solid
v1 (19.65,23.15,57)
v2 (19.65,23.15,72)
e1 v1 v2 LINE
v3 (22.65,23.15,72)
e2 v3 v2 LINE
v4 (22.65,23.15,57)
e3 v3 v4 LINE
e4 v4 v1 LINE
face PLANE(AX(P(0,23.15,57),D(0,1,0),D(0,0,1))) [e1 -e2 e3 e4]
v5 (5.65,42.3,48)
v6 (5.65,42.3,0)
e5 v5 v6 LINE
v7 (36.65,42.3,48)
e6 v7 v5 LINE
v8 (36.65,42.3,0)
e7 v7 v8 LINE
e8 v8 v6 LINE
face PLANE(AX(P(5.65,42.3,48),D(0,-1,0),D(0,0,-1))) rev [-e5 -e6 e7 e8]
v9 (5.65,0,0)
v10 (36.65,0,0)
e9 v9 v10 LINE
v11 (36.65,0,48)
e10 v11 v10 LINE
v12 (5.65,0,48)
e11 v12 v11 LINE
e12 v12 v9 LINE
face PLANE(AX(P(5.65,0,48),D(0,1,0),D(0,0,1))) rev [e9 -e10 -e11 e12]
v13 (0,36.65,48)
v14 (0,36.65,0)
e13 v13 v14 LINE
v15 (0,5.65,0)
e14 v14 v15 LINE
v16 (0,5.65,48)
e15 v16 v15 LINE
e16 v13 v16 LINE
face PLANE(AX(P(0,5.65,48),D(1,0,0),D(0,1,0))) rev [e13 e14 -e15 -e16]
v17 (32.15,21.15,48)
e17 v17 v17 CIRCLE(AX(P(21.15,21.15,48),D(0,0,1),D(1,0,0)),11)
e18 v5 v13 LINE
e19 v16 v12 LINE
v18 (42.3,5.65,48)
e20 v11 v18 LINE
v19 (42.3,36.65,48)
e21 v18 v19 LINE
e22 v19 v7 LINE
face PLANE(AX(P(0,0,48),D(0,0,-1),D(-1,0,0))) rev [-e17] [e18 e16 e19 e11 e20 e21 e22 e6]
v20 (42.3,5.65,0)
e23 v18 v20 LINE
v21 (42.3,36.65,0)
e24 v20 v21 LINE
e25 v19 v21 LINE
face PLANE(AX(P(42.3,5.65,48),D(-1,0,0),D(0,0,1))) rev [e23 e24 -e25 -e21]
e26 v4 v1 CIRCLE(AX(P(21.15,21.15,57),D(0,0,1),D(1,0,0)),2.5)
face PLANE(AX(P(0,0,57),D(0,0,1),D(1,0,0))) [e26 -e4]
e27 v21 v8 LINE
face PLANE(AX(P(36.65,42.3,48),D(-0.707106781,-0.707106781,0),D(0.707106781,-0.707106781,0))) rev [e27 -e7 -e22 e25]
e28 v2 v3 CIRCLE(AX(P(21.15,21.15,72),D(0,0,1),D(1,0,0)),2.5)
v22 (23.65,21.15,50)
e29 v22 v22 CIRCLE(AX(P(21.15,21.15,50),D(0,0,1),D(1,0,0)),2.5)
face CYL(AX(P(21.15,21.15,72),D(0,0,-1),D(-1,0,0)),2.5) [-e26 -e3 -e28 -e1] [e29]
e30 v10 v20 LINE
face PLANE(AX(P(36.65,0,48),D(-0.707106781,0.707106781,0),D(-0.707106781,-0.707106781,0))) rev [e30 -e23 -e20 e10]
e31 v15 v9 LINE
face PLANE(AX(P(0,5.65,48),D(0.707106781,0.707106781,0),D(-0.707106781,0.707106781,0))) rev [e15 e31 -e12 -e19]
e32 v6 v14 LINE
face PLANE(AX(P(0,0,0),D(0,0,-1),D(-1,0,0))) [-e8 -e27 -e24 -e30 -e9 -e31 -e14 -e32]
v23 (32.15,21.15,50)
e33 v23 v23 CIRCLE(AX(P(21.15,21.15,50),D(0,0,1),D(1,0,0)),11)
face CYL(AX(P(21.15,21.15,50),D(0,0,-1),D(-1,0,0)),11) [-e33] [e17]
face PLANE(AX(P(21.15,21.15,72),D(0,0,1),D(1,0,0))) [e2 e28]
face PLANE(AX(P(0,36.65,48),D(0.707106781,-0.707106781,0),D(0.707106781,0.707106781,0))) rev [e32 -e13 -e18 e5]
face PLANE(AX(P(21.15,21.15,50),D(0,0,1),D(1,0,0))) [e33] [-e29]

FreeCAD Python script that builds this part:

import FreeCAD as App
import Part
import Sketcher

V = App.Vector

doc = App.newDocument("Part")
body = doc.addObject("PartDesign::Body", "Body")

# Sketch on XY plane
sketch1 = doc.addObject("Sketcher::SketchObject", "Sketch")
body.addObject(sketch1)
sketch1.AttachmentSupport = (doc.XY_Plane, [""])
sketch1.MapMode = "FlatFace"
sketch1.addGeometry([
    Part.LineSegment(V(5.65, 0, 0), V(36.65, 0, 0)),  # 0
    Part.LineSegment(V(36.65, 0, 0), V(42.3, 5.65, 0)),  # 1
    Part.LineSegment(V(42.3, 5.65, 0), V(42.3, 36.65, 0)),  # 2
    Part.LineSegment(V(42.3, 36.65, 0), V(36.65, 42.3, 0)),  # 3
    Part.LineSegment(V(36.65, 42.3, 0), V(5.65, 42.3, 0)),  # 4
    Part.LineSegment(V(5.65, 42.3, 0), V(0, 36.65, 0)),  # 5
    Part.LineSegment(V(0, 36.65, 0), V(0, 5.65, 0)),  # 6
    Part.LineSegment(V(0, 5.65, 0), V(5.65, 0, 0)),  # 7
], False)
sketch1.addConstraint([
    Sketcher.Constraint("Coincident", 0, 2, 1, 1),
    Sketcher.Constraint("Coincident", 1, 2, 2, 1),
    Sketcher.Constraint("Coincident", 2, 2, 3, 1),
    Sketcher.Constraint("Coincident", 3, 2, 4, 1),
    Sketcher.Constraint("Coincident", 4, 2, 5, 1),
    Sketcher.Constraint("Coincident", 5, 2, 6, 1),
    Sketcher.Constraint("Coincident", 6, 2, 7, 1),
    Sketcher.Constraint("Coincident", 7, 2, 0, 1),
    Sketcher.Constraint("Horizontal", 0),
    Sketcher.Constraint("Vertical", 2),
    Sketcher.Constraint("Horizontal", 4),
    Sketcher.Constraint("Vertical", 6),
    Sketcher.Constraint("PointOnObject", 0, 2, -1),
    Sketcher.Constraint("PointOnObject", 5, 2, -2),
    Sketcher.Constraint("Perpendicular", 1, 3),
    Sketcher.Constraint("Perpendicular", 3, 5),
    Sketcher.Constraint("Perpendicular", 5, 7),
    Sketcher.Constraint("Horizontal", 2, 2, 5, 2),
    Sketcher.Constraint("Horizontal", 1, 2, 6, 2),
    Sketcher.Constraint("Vertical", 0, 2, 3, 2),
    Sketcher.Constraint("Vertical", 4, 2, 7, 2),
    Sketcher.Constraint("Equal", 4, 2),
    Sketcher.Constraint("DistanceX", 0, 1, 0, 2, 31.0),
    Sketcher.Constraint("DistanceX", -1, 1, 1, 2, 42.3),
])
pad1 = doc.addObject("PartDesign::Pad", "Pad")
body.addObject(pad1)
pad1.Profile = sketch1
pad1.Length = 48

# Sketch on XY plane
sketch2 = doc.addObject("Sketcher::SketchObject", "Sketch001")
body.addObject(sketch2)
sketch2.AttachmentSupport = (doc.XY_Plane, [""])
sketch2.MapMode = "FlatFace"
sketch2.AttachmentOffset = App.Placement(V(0, 0, 48), App.Rotation())
sketch2.addGeometry(Part.Circle(V(21.15, 21.15, 0), V(0, 0, 1), 11), False)
sketch2.addConstraint([
    Sketcher.Constraint("Diameter", 0, 22.0),
    Sketcher.Constraint("DistanceX", -1, 1, 0, 3, 21.15),
    Sketcher.Constraint("DistanceY", -1, 1, 0, 3, 21.15),
])
pad2 = doc.addObject("PartDesign::Pad", "Pad001")
body.addObject(pad2)
pad2.Profile = sketch2
pad2.Length = 2

# Sketch on XY plane
sketch3 = doc.addObject("Sketcher::SketchObject", "Sketch002")
body.addObject(sketch3)
sketch3.AttachmentSupport = (doc.XY_Plane, [""])
sketch3.MapMode = "FlatFace"
sketch3.AttachmentOffset = App.Placement(V(0, 0, 50), App.Rotation())
sketch3.addGeometry(Part.Circle(V(21.15, 21.15, 0), V(0, 0, 1), 2.5), False)
sketch3.addConstraint([
    Sketcher.Constraint("Diameter", 0, 5.0),
    Sketcher.Constraint("DistanceX", -1, 1, 0, 3, 21.15),
    Sketcher.Constraint("DistanceY", -1, 1, 0, 3, 21.15),
])
pad3 = doc.addObject("PartDesign::Pad", "Pad002")
body.addObject(pad3)
pad3.Profile = sketch3
pad3.Length = 22

# Sketch on XY plane
sketch4 = doc.addObject("Sketcher::SketchObject", "Sketch003")
body.addObject(sketch4)
sketch4.AttachmentSupport = (doc.XY_Plane, [""])
sketch4.MapMode = "FlatFace"
sketch4.AttachmentOffset = App.Placement(V(0, 0, 57), App.Rotation())
sketch4.addGeometry([
    Part.LineSegment(V(25.205996, 23.15, 0), V(25.205996, 25.058534, 0)),
    Part.LineSegment(V(25.205996, 25.058534, 0), V(17.955035, 25.058534, 0)),
    Part.LineSegment(V(17.955035, 25.058534, 0), V(17.955035, 23.15, 0)),
    Part.LineSegment(V(17.955035, 23.15, 0), V(25.205996, 23.15, 0)),
], False)
sketch4.addConstraint([
    Sketcher.Constraint("Coincident", 0, 2, 1, 1),
    Sketcher.Constraint("Coincident", 1, 2, 2, 1),
    Sketcher.Constraint("Coincident", 2, 2, 3, 1),
    Sketcher.Constraint("Coincident", 3, 2, 0, 1),
    Sketcher.Constraint("Vertical", 0),
    Sketcher.Constraint("Horizontal", 1),
    Sketcher.Constraint("Vertical", 2),
    Sketcher.Constraint("Horizontal", 3),
    Sketcher.Constraint("DistanceY", -1, 1, 2, 2, 23.15),
    Sketcher.Constraint("DistanceX", 1, 2, 1, 1, 7.250961),
    Sketcher.Constraint("DistanceY", 0, 1, 0, 2, 1.908534),
    Sketcher.Constraint("DistanceX", -1, 1, 0, 2, 25.205996),
])
pocket1 = doc.addObject("PartDesign::Pocket", "Pocket")
body.addObject(pocket1)
pocket1.Profile = sketch4
pocket1.Length = 15
pocket1.Reversed = True

doc.recompute()
